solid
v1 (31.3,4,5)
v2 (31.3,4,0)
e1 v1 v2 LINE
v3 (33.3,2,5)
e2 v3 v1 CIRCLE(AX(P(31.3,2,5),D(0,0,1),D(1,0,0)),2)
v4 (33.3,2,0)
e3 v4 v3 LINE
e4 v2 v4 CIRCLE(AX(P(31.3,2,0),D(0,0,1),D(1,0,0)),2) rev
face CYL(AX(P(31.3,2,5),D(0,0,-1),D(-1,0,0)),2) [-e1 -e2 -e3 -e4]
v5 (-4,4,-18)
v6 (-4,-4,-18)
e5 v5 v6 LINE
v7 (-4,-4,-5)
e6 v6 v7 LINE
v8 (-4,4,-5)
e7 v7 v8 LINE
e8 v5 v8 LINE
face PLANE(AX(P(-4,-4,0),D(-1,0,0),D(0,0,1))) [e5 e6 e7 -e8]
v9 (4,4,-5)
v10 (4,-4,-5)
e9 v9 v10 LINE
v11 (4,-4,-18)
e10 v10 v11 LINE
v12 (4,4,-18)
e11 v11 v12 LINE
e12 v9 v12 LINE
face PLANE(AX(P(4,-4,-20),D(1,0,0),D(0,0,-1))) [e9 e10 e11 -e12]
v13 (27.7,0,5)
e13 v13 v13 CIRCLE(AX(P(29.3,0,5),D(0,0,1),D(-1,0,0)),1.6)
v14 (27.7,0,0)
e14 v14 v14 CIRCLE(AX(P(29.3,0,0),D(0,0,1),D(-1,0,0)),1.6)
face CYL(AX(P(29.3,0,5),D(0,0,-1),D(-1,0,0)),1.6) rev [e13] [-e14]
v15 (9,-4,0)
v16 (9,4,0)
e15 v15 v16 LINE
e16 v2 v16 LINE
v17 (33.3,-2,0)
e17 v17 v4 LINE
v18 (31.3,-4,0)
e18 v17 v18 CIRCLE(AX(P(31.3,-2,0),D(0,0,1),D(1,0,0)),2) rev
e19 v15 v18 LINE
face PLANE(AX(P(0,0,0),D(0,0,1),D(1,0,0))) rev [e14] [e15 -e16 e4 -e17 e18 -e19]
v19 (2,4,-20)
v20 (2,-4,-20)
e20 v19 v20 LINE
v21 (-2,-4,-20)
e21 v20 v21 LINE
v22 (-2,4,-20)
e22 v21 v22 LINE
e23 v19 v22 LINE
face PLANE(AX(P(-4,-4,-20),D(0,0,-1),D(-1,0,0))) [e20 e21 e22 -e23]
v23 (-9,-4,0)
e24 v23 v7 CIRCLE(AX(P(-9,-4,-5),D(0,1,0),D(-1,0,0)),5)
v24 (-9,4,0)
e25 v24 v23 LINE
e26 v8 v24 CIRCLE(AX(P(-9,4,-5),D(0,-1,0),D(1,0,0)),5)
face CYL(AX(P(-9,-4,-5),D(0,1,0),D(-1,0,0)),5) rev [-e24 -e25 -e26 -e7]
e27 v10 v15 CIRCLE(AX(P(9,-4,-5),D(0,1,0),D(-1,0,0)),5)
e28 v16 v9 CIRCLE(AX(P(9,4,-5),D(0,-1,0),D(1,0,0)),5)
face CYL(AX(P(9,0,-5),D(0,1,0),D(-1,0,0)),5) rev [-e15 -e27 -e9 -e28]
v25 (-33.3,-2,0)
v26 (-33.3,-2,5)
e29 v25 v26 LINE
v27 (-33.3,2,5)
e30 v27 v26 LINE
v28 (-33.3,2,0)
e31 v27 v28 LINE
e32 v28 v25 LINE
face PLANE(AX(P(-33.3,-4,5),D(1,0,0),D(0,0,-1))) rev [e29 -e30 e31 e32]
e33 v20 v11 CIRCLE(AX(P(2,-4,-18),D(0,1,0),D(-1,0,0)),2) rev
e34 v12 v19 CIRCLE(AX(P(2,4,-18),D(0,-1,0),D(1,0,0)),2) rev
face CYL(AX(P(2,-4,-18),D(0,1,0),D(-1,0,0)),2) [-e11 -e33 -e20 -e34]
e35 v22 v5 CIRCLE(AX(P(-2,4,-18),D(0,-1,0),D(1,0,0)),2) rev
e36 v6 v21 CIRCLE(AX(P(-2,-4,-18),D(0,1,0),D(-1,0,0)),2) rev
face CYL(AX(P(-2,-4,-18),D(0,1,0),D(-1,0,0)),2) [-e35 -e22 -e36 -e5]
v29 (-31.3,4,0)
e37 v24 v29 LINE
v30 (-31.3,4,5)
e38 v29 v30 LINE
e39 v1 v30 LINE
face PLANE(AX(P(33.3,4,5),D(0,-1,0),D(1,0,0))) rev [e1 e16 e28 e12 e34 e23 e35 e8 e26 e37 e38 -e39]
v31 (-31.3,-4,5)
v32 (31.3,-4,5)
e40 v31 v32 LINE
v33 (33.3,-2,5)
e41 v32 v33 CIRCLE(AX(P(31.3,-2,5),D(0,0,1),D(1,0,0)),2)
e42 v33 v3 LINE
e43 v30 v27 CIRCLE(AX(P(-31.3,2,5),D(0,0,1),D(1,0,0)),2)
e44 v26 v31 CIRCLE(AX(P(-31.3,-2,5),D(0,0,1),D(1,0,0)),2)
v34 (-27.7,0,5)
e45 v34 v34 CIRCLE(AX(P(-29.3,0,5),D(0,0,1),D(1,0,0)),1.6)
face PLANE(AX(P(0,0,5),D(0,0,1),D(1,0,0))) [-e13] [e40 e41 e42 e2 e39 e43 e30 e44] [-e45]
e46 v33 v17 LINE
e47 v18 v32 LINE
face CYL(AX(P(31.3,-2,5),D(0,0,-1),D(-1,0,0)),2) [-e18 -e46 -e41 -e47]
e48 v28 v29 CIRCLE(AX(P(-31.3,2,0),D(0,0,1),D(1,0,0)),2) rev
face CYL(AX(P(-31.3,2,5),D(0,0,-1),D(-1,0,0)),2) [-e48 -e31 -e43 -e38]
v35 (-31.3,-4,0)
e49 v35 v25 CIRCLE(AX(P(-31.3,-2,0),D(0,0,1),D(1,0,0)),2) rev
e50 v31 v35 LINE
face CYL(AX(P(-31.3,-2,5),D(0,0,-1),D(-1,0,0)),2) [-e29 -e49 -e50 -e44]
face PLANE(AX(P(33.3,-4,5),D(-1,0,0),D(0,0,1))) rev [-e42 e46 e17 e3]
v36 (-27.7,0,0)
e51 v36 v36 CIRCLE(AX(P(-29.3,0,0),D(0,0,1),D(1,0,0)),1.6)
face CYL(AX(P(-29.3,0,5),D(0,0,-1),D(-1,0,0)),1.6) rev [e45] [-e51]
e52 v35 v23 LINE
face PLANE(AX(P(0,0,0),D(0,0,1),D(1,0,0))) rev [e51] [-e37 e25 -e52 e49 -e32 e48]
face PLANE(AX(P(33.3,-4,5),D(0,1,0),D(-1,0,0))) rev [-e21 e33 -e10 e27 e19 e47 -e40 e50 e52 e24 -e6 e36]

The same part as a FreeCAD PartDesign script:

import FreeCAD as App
import Part
import Sketcher

V = App.Vector
Q = App.Units.Quantity


def edges_at(feature, points):
    """Names of the edges that pass closest to the given points."""
    edges = feature.Shape.Edges
    near = lambda p: min(range(len(edges)), key=lambda i: edges[i].distToShape(Part.Vertex(*p))[0])
    return sorted({f"Edge{near(p) + 1}" for p in points})

doc = App.newDocument("Part")
body = doc.addObject("PartDesign::Body", "Body")

# Sketch on XY plane
sketch1 = body.newObject("Sketcher::SketchObject", "Sketch")
sketch1.AttachmentSupport = (doc.getObject("XY_Plane"), [""])
sketch1.MapMode = "FlatFace"
sketch1.addGeometry([
    Part.LineSegment(V(-33.3, 4, 0), V(-33.3, -4, 0)),  # 0
    Part.LineSegment(V(-33.3, -4, 0), V(33.3, -4, 0)),  # 1
    Part.LineSegment(V(33.3, -4, 0), V(33.3, 4, 0)),  # 2
    Part.LineSegment(V(33.3, 4, 0), V(-33.3, 4, 0)),  # 3
    Part.Circle(V(-29.3, 0, 0), V(0, 0, 1), 1.6),  # 4
    Part.Circle(V(29.3, 0, 0), V(0, 0, 1), 1.6),  # 5
], False)
sketch1.addConstraint([
    Sketcher.Constraint("Coincident", 0, 2, 1, 1),
    Sketcher.Constraint("Coincident", 1, 2, 2, 1),
    Sketcher.Constraint("Coincident", 2, 2, 3, 1),
    Sketcher.Constraint("Coincident", 3, 2, 0, 1),
    Sketcher.Constraint("Vertical", 0),
    Sketcher.Constraint("Horizontal", 1),
    Sketcher.Constraint("Vertical", 2),
    Sketcher.Constraint("Horizontal", 3),
    Sketcher.Constraint("Equal", 4, 5),
    Sketcher.Constraint("Symmetric", 4, 3, 5, 3, -1, 1),
    Sketcher.Constraint("Symmetric", 0, 2, 2, 2, -1, 1),
    Sketcher.Constraint("PointOnObject", 4, 3, -1),
    Sketcher.Constraint("Diameter", 4, Q("3.2 mm")),
    Sketcher.Constraint("DistanceY", 0, 2, 0, 1, Q("8 mm")),
    Sketcher.Constraint("DistanceX", 1, 1, 1, 2, Q("66.6 mm")),
    Sketcher.Constraint("DistanceX", 0, 2, 4, 3, Q("4 mm")),
])
pad1 = body.newObject("PartDesign::Pad", "Pad")
pad1.Profile = sketch1
pad1.Length = 5

# Sketch on XZ plane
sketch2 = body.newObject("Sketcher::SketchObject", "Sketch001")
sketch2.AttachmentSupport = (doc.getObject("XZ_Plane"), [""])
sketch2.MapMode = "FlatFace"
sketch2.AttachmentOffset = App.Placement(V(0, 0, -4), App.Rotation())
sketch2.addGeometry([
    Part.LineSegment(V(-4, -20, 0), V(-4, 0, 0)),
    Part.LineSegment(V(-4, 0, 0), V(4, 0, 0)),
    Part.LineSegment(V(4, 0, 0), V(4, -20, 0)),
    Part.LineSegment(V(4, -20, 0), V(-4, -20, 0)),
], False)
sketch2.addConstraint([
    Sketcher.Constraint("Coincident", 0, 2, 1, 1),
    Sketcher.Constraint("Coincident", 1, 2, 2, 1),
    Sketcher.Constraint("Coincident", 2, 2, 3, 1),
    Sketcher.Constraint("Coincident", 3, 2, 0, 1),
    Sketcher.Constraint("Vertical", 0),
    Sketcher.Constraint("Horizontal", 1),
    Sketcher.Constraint("Vertical", 2),
    Sketcher.Constraint("Horizontal", 3),
    Sketcher.Constraint("Symmetric", 0, 2, 1, 2, -1, 1),
    Sketcher.Constraint("DistanceX", 1, 1, 1, 2, Q("8 mm")),
    Sketcher.Constraint("DistanceY", 0, 1, 0, 2, Q("20 mm")),
])
pad2 = body.newObject("PartDesign::Pad", "Pad001")
pad2.Profile = sketch2
pad2.Length = 8
doc.recompute()

fillet = body.newObject("PartDesign::Fillet", "Fillet")
fillet.Base = (pad2, edges_at(pad2, [
    (-33.3, 4, 2.5),
    (33.3, 4, 2.5),
    (33.3, -4, 2.5),
    (-33.3, -4, 2.5),
]))
fillet.Radius = 2
doc.recompute()

fillet2 = body.newObject("PartDesign::Fillet", "Fillet001")
fillet2.Base = (fillet, edges_at(fillet, [(4, 0, 0), (-4, 0, 0)]))
fillet2.Radius = 5
doc.recompute()

fillet3 = body.newObject("PartDesign::Fillet", "Fillet002")
fillet3.Base = (fillet2, edges_at(fillet2, [(-4, 0, -20), (4, 0, -20)]))
fillet3.Radius = 2

doc.recompute()
